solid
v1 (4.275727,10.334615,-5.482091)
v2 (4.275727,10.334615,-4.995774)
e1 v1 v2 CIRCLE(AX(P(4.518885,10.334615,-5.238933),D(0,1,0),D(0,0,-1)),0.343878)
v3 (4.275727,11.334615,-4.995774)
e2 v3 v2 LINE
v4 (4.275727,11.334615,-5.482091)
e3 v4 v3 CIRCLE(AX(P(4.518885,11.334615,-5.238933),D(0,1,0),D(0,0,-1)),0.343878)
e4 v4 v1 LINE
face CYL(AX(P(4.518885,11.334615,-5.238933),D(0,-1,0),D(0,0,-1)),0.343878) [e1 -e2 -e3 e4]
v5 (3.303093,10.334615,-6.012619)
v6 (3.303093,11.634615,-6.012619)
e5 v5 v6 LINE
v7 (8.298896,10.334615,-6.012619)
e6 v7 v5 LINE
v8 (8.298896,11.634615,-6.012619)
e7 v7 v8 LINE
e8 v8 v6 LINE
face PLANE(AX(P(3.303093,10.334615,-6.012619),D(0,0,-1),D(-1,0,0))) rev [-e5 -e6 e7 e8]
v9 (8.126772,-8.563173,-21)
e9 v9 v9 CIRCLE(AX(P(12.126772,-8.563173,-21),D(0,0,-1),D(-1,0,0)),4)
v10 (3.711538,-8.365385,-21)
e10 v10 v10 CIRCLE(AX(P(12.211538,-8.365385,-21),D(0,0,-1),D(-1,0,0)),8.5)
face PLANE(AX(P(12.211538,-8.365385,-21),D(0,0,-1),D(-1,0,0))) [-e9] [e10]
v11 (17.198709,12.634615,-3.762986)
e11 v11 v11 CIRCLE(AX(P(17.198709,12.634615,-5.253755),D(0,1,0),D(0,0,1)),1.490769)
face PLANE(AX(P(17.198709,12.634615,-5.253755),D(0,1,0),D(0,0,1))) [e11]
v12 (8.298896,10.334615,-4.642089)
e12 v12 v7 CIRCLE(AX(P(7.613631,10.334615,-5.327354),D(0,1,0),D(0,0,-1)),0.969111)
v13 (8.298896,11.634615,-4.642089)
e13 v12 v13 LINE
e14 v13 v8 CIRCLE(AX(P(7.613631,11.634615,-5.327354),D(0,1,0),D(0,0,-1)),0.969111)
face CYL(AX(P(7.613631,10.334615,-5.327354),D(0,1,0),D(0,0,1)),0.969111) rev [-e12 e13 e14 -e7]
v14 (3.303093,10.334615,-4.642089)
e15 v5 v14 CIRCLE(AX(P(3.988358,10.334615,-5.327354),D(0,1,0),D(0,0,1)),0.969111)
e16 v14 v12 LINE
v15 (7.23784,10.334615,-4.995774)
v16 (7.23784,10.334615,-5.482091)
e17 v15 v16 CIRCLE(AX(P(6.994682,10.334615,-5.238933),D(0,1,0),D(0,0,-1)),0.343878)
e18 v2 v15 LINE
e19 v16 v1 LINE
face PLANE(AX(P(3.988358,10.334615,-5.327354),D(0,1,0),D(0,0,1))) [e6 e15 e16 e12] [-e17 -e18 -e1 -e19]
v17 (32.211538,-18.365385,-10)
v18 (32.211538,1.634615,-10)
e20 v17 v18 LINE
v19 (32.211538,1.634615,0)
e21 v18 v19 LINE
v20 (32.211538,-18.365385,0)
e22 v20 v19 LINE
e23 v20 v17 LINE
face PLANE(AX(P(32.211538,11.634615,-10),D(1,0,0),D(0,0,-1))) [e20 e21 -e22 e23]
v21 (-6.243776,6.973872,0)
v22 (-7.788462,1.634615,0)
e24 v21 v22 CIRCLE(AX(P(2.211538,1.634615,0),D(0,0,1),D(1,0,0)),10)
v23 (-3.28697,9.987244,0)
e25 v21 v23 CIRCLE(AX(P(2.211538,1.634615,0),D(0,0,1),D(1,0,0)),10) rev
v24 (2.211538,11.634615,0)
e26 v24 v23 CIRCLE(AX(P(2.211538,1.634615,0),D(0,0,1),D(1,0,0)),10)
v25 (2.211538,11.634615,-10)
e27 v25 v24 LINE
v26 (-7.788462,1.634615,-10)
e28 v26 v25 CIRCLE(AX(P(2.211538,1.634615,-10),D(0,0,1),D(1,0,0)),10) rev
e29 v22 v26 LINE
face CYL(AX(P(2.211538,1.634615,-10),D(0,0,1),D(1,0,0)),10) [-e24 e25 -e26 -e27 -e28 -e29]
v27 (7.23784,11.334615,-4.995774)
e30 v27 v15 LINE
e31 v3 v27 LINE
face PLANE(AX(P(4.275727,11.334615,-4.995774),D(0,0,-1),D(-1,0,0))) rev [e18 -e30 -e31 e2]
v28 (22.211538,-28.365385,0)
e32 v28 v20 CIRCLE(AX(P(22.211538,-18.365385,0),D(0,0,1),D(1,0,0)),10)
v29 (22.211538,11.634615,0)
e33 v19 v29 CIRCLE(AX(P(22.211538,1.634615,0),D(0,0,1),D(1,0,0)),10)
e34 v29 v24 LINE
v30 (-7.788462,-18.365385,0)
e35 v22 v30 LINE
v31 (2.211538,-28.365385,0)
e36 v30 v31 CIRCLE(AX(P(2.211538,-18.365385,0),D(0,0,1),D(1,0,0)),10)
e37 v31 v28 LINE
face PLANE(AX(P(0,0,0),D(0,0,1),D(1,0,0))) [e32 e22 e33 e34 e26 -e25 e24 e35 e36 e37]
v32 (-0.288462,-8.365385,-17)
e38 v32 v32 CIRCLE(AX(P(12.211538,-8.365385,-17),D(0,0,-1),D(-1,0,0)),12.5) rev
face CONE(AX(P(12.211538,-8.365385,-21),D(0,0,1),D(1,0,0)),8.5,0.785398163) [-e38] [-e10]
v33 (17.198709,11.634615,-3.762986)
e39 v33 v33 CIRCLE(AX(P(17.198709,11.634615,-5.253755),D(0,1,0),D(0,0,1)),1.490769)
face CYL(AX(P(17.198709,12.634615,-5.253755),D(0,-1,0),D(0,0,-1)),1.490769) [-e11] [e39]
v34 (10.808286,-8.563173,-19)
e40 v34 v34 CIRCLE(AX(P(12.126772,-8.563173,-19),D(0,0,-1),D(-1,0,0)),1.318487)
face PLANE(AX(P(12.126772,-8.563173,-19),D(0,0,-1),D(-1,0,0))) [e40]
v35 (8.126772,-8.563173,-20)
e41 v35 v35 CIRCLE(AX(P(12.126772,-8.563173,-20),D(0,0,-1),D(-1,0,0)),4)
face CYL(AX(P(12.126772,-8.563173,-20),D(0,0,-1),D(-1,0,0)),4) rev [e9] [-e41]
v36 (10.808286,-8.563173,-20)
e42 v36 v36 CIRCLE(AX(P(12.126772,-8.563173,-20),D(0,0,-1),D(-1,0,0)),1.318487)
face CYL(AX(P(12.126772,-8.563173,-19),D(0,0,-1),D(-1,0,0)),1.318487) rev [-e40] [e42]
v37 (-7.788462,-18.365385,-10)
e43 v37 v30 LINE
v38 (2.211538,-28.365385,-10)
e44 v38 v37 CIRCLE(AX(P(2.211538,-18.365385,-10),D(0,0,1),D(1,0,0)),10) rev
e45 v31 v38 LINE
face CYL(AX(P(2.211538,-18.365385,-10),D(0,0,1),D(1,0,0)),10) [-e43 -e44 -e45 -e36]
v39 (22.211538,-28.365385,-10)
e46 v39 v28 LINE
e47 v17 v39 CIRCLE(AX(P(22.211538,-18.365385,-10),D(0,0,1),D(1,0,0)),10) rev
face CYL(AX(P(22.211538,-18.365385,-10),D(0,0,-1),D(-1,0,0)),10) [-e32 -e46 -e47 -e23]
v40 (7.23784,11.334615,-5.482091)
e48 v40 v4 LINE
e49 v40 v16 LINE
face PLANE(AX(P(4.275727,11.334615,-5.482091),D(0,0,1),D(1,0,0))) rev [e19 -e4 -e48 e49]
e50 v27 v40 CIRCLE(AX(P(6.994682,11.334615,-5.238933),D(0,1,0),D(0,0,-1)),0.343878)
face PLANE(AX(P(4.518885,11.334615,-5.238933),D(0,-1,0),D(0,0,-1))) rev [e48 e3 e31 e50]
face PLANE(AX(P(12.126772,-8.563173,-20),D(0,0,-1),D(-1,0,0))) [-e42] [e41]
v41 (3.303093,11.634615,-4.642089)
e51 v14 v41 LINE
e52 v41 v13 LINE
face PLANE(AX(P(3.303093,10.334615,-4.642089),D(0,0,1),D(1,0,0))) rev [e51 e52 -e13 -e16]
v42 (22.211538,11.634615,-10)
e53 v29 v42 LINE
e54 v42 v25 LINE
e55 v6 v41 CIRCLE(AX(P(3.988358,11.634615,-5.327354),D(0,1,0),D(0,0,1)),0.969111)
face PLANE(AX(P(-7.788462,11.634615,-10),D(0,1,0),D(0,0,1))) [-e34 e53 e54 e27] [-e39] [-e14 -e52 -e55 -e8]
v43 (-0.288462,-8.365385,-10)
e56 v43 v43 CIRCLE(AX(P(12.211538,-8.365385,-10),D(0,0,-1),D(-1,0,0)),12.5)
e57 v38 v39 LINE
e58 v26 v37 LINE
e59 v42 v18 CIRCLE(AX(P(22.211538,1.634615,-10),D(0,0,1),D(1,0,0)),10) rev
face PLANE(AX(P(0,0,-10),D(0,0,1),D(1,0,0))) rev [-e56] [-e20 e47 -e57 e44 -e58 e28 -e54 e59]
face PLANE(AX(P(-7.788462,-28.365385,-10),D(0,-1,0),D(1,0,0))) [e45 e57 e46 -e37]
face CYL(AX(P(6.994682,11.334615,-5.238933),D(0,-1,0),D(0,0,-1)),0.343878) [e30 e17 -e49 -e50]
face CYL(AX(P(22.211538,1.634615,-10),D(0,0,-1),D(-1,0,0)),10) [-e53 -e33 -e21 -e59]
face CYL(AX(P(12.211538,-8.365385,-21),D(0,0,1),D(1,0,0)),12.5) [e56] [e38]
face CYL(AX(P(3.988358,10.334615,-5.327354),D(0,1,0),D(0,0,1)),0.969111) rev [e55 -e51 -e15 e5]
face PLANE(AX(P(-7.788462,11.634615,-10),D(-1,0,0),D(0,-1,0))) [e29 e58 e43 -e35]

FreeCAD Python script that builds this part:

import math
import FreeCAD as App
import Part
import Sketcher

V = App.Vector
Q = App.Units.Quantity


def edges_at(feature, points):
    """Names of the edges that pass closest to the given points."""
    edges = feature.Shape.Edges
    near = lambda p: min(range(len(edges)), key=lambda i: edges[i].distToShape(Part.Vertex(*p))[0])
    return sorted({f"Edge{near(p) + 1}" for p in points})

doc = App.newDocument("Part")
body = doc.addObject("PartDesign::Body", "Body")

# Sketch on XY plane
sketch1 = doc.addObject("Sketcher::SketchObject", "Sketch")
body.addObject(sketch1)
sketch1.AttachmentSupport = (doc.XY_Plane, [""])
sketch1.MapMode = "FlatFace"
sketch1.addGeometry(Part.LineSegment(V(-7.788462, 11.634615, 0), V(-7.788462, -28.365385, 0)), False)
sketch1.addGeometry(Part.LineSegment(V(-7.788462, -28.365385, 0), V(32.211538, -28.365385, 0)), False)
sketch1.addGeometry(Part.LineSegment(V(32.211538, -28.365385, 0), V(32.211538, 11.634615, 0)), False)
sketch1.addGeometry(Part.LineSegment(V(32.211538, 11.634615, 0), V(-7.788462, 11.634615, 0)), False)
sketch1.addConstraint(Sketcher.Constraint("Coincident", 0, 2, 1, 1))
sketch1.addConstraint(Sketcher.Constraint("Coincident", 1, 2, 2, 1))
sketch1.addConstraint(Sketcher.Constraint("Coincident", 2, 2, 3, 1))
sketch1.addConstraint(Sketcher.Constraint("Coincident", 3, 2, 0, 1))
sketch1.addConstraint(Sketcher.Constraint("Vertical", 0))
sketch1.addConstraint(Sketcher.Constraint("Horizontal", 1))
sketch1.addConstraint(Sketcher.Constraint("Vertical", 2))
sketch1.addConstraint(Sketcher.Constraint("Horizontal", 3))
sketch1.addConstraint(Sketcher.Constraint("Equal", 3, 0))
sketch1.addConstraint(Sketcher.Constraint("DistanceX", 1, 1, 1, 2, Q("40 mm")))
sketch1.addConstraint(Sketcher.Constraint("DistanceX", 0, 2, -1, 1, Q("7.788462 mm")))
sketch1.addConstraint(Sketcher.Constraint("DistanceY", 0, 2, -1, 1, Q("28.365385 mm")))
pad1 = doc.addObject("PartDesign::Pad", "Pad")
body.addObject(pad1)
pad1.Profile = sketch1
pad1.Length = 10
pad1.Reversed = True

# Sketch on XY plane
sketch2 = doc.addObject("Sketcher::SketchObject", "Sketch001")
body.addObject(sketch2)
sketch2.AttachmentSupport = (doc.XY_Plane, [""])
sketch2.MapMode = "FlatFace"
sketch2.AttachmentOffset = App.Placement(V(0, 0, -10), App.Rotation())
sketch2.addGeometry(Part.Circle(V(12.211538, -8.365385, 0), V(0, 0, 1), 12.5), False)
sketch2.addConstraint(Sketcher.Constraint("Diameter", 0, Q("25 mm")))
sketch2.addConstraint(Sketcher.Constraint("DistanceX", -1, 1, 0, 3, Q("12.211538 mm")))
sketch2.addConstraint(Sketcher.Constraint("DistanceY", 0, 3, -1, 1, Q("8.365385 mm")))
pad2 = doc.addObject("PartDesign::Pad", "Pad001")
body.addObject(pad2)
pad2.Profile = sketch2
pad2.Length = 11
pad2.Reversed = True
doc.recompute()

chamfer = doc.addObject("PartDesign::Chamfer", "Chamfer")
body.addObject(chamfer)
chamfer.Base = (pad2, edges_at(pad2, [(24.712, -8.365, -21)]))
chamfer.Size = 4

# Sketch on XY plane
sketch3 = doc.addObject("Sketcher::SketchObject", "Sketch002")
body.addObject(sketch3)
sketch3.AttachmentSupport = (doc.XY_Plane, [""])
sketch3.MapMode = "FlatFace"
sketch3.AttachmentOffset = App.Placement(V(0, 0, -21), App.Rotation())
sketch3.addGeometry(Part.Circle(V(12.126772, -8.563173, 0), V(0, 0, 1), 4), False)
sketch3.addConstraint(Sketcher.Constraint("Diameter", 0, Q("8 mm")))
sketch3.addConstraint(Sketcher.Constraint("DistanceX", -1, 1, 0, 3, Q("12.126772 mm")))
sketch3.addConstraint(Sketcher.Constraint("DistanceY", 0, 3, -1, 1, Q("8.563173 mm")))
pocket1 = doc.addObject("PartDesign::Pocket", "Pocket")
body.addObject(pocket1)
pocket1.Profile = sketch3
pocket1.Length = 1
pocket1.Reversed = True

# Sketch on XY plane
sketch4 = doc.addObject("Sketcher::SketchObject", "Sketch003")
body.addObject(sketch4)
sketch4.AttachmentSupport = (doc.XY_Plane, [""])
sketch4.MapMode = "FlatFace"
sketch4.addGeometry(Part.Circle(V(-3.809283, 7.542415, 0), V(0, 0, 1), 2.5), False)
sketch4.addConstraint(Sketcher.Constraint("Diameter", 0, Q("5 mm")))
sketch4.addConstraint(Sketcher.Constraint("DistanceX", 0, 3, -1, 1, Q("3.809283 mm")))
sketch4.addConstraint(Sketcher.Constraint("DistanceY", -1, 1, 0, 3, Q("7.542415 mm")))
pocket2 = doc.addObject("PartDesign::Pocket", "Pocket001")
body.addObject(pocket2)
pocket2.Profile = sketch4
pocket2.Length = 2
doc.recompute()

fillet = doc.addObject("PartDesign::Fillet", "Fillet")
body.addObject(fillet)
fillet.Base = (pocket2, edges_at(pocket2, [(32.212, 11.635, -5)]))
fillet.Radius = 10
doc.recompute()

fillet2 = doc.addObject("PartDesign::Fillet", "Fillet001")
body.addObject(fillet2)
fillet2.Base = (fillet, edges_at(fillet, [(-7.788, 11.635, -5)]))
fillet2.Radius = 10
doc.recompute()

fillet3 = doc.addObject("PartDesign::Fillet", "Fillet002")
body.addObject(fillet3)
fillet3.Base = (fillet2, edges_at(fillet2, [(-7.788, -28.365, -5)]))
fillet3.Radius = 10
doc.recompute()

fillet4 = doc.addObject("PartDesign::Fillet", "Fillet003")
body.addObject(fillet4)
fillet4.Base = (fillet3, edges_at(fillet3, [(32.212, -28.365, -5)]))
fillet4.Radius = 10

# Sketch on XZ plane
sketch5 = doc.addObject("Sketcher::SketchObject", "Sketch004")
body.addObject(sketch5)
sketch5.AttachmentSupport = (doc.XZ_Plane, [""])
sketch5.MapMode = "FlatFace"
sketch5.AttachmentOffset = App.Placement(V(0, 0, -11.634615), App.Rotation())
sketch5.addGeometry(Part.LineSegment(V(3.303093, -4.642089, 0), V(8.298896, -4.642089, 0)), False)
sketch5.addGeometry(Part.ArcOfCircle(Part.Circle(V(7.613631, -5.327354, 0), V(0, 0, 1), 0.969111), math.radians(-45), math.radians(45)), False)
sketch5.addGeometry(Part.LineSegment(V(8.298896, -6.012619, 0), V(3.303093, -6.012619, 0)), False)
sketch5.addGeometry(Part.ArcOfCircle(Part.Circle(V(3.988358, -5.327354, 0), V(0, 0, 1), 0.969111), math.radians(135), math.radians(225)), False)
sketch5.addConstraint(Sketcher.Constraint("Coincident", 0, 2, 1, 2))
sketch5.addConstraint(Sketcher.Constraint("Coincident", 1, 1, 2, 1))
sketch5.addConstraint(Sketcher.Constraint("Coincident", 2, 2, 3, 2))
sketch5.addConstraint(Sketcher.Constraint("Coincident", 3, 1, 0, 1))
sketch5.addConstraint(Sketcher.Constraint("Horizontal", 0))
sketch5.addConstraint(Sketcher.Constraint("Horizontal", 2))
sketch5.addConstraint(Sketcher.Constraint("Equal", 1, 3))
sketch5.addConstraint(Sketcher.Constraint("Horizontal", 1, 3, 3, 3))
sketch5.addConstraint(Sketcher.Constraint("Vertical", 0, 2, 1, 1))
sketch5.addConstraint(Sketcher.Constraint("Radius", 1, Q("0.969111 mm")))
sketch5.addConstraint(Sketcher.Constraint("DistanceX", 0, 1, 0, 2, Q("4.995803 mm")))
sketch5.addConstraint(Sketcher.Constraint("DistanceX", -1, 1, 1, 3, Q("7.613631 mm")))
sketch5.addConstraint(Sketcher.Constraint("DistanceY", 0, 2, -1, 1, Q("4.642089 mm")))
sketch5.addConstraint(Sketcher.Constraint("DistanceY", 1, 1, -1, 1, Q("6.012619 mm")))
pocket3 = doc.addObject("PartDesign::Pocket", "Pocket002")
body.addObject(pocket3)
pocket3.Profile = sketch5
pocket3.Length = 1.3
pocket3.Reversed = True

# Sketch on XZ plane
sketch6 = doc.addObject("Sketcher::SketchObject", "Sketch005")
body.addObject(sketch6)
sketch6.AttachmentSupport = (doc.XZ_Plane, [""])
sketch6.MapMode = "FlatFace"
sketch6.AttachmentOffset = App.Placement(V(0, 0, -10.334615), App.Rotation())
sketch6.addGeometry(Part.LineSegment(V(7.23784, -5.482091, 0), V(4.275727, -5.482091, 0)), False)
sketch6.addGeometry(Part.ArcOfCircle(Part.Circle(V(4.518885, -5.238933, 0), V(0, 0, 1), 0.343878), math.radians(135), math.radians(225)), False)
sketch6.addGeometry(Part.LineSegment(V(4.275727, -4.995774, 0), V(7.23784, -4.995774, 0)), False)
sketch6.addGeometry(Part.ArcOfCircle(Part.Circle(V(6.994682, -5.238933, 0), V(0, 0, 1), 0.343878), math.radians(-45), math.radians(45)), False)
sketch6.addConstraint(Sketcher.Constraint("Coincident", 0, 2, 1, 2))
sketch6.addConstraint(Sketcher.Constraint("Coincident", 1, 1, 2, 1))
sketch6.addConstraint(Sketcher.Constraint("Coincident", 2, 2, 3, 2))
sketch6.addConstraint(Sketcher.Constraint("Coincident", 3, 1, 0, 1))
sketch6.addConstraint(Sketcher.Constraint("Horizontal", 0))
sketch6.addConstraint(Sketcher.Constraint("Horizontal", 2))
sketch6.addConstraint(Sketcher.Constraint("Equal", 1, 3))
sketch6.addConstraint(Sketcher.Constraint("Horizontal", 1, 3, 3, 3))
sketch6.addConstraint(Sketcher.Constraint("Vertical", 0, 2, 1, 1))
sketch6.addConstraint(Sketcher.Constraint("Radius", 1, Q("0.343878 mm")))
sketch6.addConstraint(Sketcher.Constraint("DistanceX", 0, 2, 0, 1, Q("2.962114 mm")))
sketch6.addConstraint(Sketcher.Constraint("DistanceX", -1, 1, 3, 3, Q("6.994682 mm")))
sketch6.addConstraint(Sketcher.Constraint("DistanceY", 0, 2, -1, 1, Q("5.482091 mm")))
sketch6.addConstraint(Sketcher.Constraint("DistanceX", -1, 1, 2, 2, Q("7.23784 mm")))
pad3 = doc.addObject("PartDesign::Pad", "Pad002")
body.addObject(pad3)
pad3.Profile = sketch6
pad3.Length = 1
pad3.Reversed = True

# Sketch on XZ plane
sketch7 = doc.addObject("Sketcher::SketchObject", "Sketch006")
body.addObject(sketch7)
sketch7.AttachmentSupport = (doc.XZ_Plane, [""])
sketch7.MapMode = "FlatFace"
sketch7.AttachmentOffset = App.Placement(V(0, 0, -11.634615), App.Rotation())
sketch7.addGeometry(Part.Circle(V(17.198709, -5.253755, 0), V(0, 0, 1), 1.490769), False)
sketch7.addConstraint(Sketcher.Constraint("Diameter", 0, Q("2.981538 mm")))
sketch7.addConstraint(Sketcher.Constraint("DistanceX", -1, 1, 0, 3, Q("17.198709 mm")))
sketch7.addConstraint(Sketcher.Constraint("DistanceY", 0, 3, -1, 1, Q("5.253755 mm")))
pad4 = doc.addObject("PartDesign::Pad", "Pad003")
body.addObject(pad4)
pad4.Profile = sketch7
pad4.Length = 1
pad4.Reversed = True

# Sketch on XY plane
sketch8 = doc.addObject("Sketcher::SketchObject", "Sketch007")
body.addObject(sketch8)
sketch8.AttachmentSupport = (doc.XY_Plane, [""])
sketch8.MapMode = "FlatFace"
sketch8.AttachmentOffset = App.Placement(V(0, 0, -20), App.Rotation())
sketch8.addGeometry(Part.Circle(V(12.126772, -8.563173, 0), V(0, 0, 1), 1.318487), False)
sketch8.addConstraint(Sketcher.Constraint("Diameter", 0, Q("2.636973 mm")))
sketch8.addConstraint(Sketcher.Constraint("DistanceX", -1, 1, 0, 3, Q("12.126772 mm")))
sketch8.addConstraint(Sketcher.Constraint("DistanceY", 0, 3, -1, 1, Q("8.563173 mm")))
pocket4 = doc.addObject("PartDesign::Pocket", "Pocket003")
body.addObject(pocket4)
pocket4.Profile = sketch8
pocket4.Length = 1
pocket4.Reversed = True

doc.recompute()
